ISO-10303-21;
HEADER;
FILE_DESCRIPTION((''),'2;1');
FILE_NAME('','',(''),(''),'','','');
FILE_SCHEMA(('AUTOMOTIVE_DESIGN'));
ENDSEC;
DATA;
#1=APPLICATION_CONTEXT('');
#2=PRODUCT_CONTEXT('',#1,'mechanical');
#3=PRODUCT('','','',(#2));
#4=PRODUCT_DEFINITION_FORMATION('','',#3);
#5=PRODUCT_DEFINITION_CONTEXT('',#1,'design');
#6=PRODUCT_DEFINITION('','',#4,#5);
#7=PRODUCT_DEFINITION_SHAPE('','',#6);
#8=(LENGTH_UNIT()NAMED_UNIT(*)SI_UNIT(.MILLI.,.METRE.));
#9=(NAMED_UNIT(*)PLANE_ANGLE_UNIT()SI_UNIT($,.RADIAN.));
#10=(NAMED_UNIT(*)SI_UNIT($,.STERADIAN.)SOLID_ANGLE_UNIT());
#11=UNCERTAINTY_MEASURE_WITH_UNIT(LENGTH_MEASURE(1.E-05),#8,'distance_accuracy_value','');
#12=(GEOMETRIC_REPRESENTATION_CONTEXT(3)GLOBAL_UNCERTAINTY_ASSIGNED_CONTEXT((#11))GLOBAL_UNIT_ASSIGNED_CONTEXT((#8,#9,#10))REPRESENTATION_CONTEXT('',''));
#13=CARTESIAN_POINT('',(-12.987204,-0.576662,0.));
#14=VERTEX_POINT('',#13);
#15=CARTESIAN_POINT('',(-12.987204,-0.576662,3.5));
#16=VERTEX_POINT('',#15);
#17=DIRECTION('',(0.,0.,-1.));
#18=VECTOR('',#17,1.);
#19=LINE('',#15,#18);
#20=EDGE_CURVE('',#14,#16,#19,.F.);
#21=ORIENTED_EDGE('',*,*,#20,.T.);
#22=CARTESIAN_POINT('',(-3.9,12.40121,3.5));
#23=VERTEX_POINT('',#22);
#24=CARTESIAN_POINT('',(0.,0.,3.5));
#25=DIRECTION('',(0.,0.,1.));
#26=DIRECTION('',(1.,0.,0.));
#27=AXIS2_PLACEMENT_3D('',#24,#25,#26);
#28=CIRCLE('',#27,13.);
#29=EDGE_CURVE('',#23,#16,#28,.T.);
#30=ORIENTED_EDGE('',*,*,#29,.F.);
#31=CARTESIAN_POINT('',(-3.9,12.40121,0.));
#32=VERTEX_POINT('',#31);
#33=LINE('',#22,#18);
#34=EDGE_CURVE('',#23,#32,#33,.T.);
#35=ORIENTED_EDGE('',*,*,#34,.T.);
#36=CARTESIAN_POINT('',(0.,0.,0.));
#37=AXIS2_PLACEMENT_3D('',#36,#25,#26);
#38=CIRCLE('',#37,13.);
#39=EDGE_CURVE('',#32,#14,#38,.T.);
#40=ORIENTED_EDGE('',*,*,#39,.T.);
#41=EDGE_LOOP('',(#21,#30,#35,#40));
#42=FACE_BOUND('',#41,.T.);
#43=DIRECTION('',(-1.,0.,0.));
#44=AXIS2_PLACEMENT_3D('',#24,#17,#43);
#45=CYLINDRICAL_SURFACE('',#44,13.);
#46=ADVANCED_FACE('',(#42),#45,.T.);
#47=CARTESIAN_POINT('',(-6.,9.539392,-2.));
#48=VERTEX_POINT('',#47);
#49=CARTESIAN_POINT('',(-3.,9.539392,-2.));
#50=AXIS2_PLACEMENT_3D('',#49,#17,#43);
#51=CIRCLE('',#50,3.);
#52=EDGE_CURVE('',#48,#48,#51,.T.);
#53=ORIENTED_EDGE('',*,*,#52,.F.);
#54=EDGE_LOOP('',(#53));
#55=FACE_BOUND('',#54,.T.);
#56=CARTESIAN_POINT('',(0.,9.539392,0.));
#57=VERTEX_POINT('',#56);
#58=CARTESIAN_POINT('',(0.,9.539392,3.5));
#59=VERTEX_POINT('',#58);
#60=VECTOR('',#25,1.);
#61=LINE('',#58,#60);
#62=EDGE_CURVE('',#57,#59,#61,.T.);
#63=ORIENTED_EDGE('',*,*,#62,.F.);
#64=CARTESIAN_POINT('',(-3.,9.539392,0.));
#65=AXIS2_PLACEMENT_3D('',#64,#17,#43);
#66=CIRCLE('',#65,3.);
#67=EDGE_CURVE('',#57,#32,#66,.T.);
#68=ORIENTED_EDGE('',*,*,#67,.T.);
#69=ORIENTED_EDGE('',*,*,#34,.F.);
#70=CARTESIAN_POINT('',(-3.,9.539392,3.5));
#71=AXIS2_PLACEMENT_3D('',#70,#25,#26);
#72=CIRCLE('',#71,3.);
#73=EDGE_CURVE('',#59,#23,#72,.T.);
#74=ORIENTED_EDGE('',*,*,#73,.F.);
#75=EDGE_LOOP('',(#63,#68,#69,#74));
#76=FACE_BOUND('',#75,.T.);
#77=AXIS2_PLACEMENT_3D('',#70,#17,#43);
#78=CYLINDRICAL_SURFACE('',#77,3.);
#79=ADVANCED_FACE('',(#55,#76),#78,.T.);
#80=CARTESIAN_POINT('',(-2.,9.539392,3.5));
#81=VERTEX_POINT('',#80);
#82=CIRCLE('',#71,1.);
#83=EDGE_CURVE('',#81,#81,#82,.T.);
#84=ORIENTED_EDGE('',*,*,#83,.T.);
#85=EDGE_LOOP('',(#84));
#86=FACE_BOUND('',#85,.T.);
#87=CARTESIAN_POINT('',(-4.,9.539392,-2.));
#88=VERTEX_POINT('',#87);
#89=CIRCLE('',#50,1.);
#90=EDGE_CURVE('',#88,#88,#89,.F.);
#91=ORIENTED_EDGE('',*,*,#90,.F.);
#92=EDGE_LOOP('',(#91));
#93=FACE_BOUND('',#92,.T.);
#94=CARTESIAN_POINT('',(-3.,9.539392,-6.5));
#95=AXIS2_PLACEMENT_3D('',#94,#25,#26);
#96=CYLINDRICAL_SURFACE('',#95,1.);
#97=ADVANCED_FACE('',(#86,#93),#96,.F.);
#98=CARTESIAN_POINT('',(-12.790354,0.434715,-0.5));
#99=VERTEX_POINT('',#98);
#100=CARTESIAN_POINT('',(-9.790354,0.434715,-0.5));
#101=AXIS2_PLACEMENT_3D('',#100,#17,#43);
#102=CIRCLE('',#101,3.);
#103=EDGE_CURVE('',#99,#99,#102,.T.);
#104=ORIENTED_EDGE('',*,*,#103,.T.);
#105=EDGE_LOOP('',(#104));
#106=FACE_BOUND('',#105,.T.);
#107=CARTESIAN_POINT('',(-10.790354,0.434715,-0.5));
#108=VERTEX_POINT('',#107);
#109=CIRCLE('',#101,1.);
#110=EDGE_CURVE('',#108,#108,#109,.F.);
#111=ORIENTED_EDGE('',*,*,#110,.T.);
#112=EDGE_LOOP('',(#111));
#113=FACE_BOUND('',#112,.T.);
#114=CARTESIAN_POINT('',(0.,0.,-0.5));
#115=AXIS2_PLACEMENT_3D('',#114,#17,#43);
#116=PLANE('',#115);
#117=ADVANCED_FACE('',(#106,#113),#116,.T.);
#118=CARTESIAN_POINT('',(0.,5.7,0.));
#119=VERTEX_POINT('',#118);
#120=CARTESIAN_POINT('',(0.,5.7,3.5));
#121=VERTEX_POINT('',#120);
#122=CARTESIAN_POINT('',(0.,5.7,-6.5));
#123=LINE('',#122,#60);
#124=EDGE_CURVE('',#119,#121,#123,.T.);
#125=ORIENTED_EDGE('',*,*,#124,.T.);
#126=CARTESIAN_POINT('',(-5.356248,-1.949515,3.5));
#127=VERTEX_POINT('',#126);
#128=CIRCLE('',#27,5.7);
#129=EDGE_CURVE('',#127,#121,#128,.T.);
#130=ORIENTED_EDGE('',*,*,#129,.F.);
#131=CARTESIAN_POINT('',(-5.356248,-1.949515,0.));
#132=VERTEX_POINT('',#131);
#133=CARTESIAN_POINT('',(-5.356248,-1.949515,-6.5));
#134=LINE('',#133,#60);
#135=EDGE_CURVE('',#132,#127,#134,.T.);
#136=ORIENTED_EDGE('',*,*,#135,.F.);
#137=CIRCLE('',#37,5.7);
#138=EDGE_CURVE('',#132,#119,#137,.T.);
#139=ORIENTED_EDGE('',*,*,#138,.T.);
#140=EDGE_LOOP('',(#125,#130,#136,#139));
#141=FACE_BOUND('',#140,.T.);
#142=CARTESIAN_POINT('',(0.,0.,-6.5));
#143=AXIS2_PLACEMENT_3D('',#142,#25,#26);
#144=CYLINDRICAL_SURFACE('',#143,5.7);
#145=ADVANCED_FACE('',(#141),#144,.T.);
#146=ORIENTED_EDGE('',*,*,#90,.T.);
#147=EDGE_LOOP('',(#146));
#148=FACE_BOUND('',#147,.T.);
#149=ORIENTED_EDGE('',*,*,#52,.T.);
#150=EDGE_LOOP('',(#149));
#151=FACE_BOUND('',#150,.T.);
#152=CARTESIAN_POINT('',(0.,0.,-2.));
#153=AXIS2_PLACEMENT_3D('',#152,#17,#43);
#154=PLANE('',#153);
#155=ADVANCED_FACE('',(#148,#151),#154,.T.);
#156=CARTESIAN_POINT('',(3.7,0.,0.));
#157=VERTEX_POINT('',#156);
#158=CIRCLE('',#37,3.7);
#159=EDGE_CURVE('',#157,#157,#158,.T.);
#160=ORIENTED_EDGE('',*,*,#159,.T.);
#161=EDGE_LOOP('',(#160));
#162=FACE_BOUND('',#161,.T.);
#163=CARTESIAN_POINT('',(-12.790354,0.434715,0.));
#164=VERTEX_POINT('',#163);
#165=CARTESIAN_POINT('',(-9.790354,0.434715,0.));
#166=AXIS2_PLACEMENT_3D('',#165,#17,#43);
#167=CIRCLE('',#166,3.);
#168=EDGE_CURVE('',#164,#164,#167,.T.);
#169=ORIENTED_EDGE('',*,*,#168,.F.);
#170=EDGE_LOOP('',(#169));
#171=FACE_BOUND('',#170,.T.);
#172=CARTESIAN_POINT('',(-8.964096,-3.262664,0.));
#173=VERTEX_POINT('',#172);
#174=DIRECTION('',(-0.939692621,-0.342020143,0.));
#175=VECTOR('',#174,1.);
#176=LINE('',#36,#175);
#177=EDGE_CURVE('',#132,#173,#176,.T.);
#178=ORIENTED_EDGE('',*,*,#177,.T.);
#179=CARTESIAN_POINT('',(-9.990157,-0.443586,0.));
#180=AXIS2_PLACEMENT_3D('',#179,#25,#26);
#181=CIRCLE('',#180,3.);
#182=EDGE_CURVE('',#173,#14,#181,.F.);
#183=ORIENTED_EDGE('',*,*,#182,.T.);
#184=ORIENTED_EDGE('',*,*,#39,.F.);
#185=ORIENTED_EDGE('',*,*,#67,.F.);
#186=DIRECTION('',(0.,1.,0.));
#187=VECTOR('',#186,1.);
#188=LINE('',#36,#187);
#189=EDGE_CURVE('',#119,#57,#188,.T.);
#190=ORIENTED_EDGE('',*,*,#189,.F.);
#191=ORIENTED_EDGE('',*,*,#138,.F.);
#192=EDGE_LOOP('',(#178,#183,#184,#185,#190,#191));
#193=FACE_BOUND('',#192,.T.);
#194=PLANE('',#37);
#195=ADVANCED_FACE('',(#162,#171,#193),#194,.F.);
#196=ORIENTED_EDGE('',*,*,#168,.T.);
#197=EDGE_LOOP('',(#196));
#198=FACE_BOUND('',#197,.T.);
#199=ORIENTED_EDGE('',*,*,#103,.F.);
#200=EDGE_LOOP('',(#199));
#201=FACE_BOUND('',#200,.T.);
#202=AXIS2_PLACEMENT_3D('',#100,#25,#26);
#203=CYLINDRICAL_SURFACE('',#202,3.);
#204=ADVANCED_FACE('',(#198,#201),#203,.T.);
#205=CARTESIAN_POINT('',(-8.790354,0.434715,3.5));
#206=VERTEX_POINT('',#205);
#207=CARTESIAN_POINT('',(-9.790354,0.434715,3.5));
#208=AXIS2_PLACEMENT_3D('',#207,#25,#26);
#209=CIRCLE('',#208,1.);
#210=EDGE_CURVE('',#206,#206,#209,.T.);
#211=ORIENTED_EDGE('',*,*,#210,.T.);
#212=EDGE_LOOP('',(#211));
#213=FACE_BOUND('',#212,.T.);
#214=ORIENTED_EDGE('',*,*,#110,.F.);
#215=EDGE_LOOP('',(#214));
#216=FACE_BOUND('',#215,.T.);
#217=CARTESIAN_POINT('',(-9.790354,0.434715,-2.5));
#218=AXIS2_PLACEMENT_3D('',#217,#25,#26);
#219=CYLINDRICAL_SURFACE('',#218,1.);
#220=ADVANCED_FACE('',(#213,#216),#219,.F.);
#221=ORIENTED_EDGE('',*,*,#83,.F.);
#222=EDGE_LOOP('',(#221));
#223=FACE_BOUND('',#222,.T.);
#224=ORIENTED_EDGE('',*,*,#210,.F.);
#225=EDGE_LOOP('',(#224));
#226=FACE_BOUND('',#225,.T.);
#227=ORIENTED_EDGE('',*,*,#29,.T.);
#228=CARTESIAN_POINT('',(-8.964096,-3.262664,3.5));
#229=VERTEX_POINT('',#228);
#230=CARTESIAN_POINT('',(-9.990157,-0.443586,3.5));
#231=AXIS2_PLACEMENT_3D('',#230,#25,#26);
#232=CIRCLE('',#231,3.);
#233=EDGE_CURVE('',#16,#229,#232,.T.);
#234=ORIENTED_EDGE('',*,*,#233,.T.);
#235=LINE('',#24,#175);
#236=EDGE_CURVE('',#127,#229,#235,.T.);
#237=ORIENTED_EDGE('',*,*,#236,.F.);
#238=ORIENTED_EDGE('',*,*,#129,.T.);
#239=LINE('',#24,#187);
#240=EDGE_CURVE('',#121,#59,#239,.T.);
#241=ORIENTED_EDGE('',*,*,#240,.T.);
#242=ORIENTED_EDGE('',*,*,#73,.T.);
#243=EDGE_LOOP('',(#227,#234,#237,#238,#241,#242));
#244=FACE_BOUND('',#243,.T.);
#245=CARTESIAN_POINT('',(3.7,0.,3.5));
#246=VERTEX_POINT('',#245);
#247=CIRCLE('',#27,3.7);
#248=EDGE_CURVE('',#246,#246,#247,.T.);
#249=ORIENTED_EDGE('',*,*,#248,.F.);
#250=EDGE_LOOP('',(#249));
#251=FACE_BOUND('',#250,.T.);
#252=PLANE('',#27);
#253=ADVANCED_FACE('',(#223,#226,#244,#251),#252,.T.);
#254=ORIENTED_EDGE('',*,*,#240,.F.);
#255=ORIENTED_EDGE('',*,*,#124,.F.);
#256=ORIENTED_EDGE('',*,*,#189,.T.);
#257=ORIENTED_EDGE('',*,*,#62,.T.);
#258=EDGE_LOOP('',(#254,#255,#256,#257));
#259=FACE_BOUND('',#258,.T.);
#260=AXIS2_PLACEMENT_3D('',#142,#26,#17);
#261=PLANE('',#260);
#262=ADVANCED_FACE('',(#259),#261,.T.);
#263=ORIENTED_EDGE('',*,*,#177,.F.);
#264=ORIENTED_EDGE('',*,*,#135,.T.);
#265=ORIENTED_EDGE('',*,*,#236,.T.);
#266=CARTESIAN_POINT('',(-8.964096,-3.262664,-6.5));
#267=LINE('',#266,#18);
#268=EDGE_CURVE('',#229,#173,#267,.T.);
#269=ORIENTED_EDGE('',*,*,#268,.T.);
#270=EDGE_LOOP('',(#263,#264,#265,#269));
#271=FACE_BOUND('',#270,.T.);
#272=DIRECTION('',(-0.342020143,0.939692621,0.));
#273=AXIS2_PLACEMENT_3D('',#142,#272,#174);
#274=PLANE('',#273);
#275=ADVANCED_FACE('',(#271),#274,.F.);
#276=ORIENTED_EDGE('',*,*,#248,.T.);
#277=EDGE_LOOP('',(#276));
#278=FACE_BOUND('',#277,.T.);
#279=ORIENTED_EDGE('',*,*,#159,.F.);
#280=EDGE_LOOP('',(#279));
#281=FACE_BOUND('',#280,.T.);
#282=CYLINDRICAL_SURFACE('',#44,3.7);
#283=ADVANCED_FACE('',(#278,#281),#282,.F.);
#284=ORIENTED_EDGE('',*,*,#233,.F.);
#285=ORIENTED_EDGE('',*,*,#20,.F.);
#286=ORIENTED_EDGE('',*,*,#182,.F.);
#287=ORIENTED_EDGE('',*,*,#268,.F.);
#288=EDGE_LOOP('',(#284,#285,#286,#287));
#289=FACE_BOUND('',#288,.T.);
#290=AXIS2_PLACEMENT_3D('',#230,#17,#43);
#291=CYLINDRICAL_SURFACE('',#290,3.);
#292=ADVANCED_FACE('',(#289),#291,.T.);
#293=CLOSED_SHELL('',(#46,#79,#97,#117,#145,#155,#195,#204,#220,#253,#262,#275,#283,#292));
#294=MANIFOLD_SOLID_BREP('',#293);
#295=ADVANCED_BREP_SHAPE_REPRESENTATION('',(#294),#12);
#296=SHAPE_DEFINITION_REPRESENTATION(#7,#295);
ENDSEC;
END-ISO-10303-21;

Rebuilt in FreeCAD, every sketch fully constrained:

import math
import FreeCAD as App
import Part
import Sketcher

V = App.Vector
Q = App.Units.Quantity


def edges_at(feature, points):
    """Names of the edges that pass closest to the given points."""
    edges = feature.Shape.Edges
    near = lambda p: min(range(len(edges)), key=lambda i: edges[i].distToShape(Part.Vertex(*p))[0])
    return sorted({f"Edge{near(p) + 1}" for p in points})

doc = App.newDocument("Part")
body = doc.addObject("PartDesign::Body", "Body")

# Sketch on XY plane
sketch1 = doc.addObject("Sketcher::SketchObject", "Sketch")
body.addObject(sketch1)
sketch1.AttachmentSupport = (doc.XY_Plane, [""])
sketch1.MapMode = "FlatFace"
sketch1.addGeometry([
    Part.Circle(V(0, 0, 0), V(0, 0, 1), 13),
    Part.Circle(V(0, 0, 0), V(0, 0, 1), 3.7),
], False)
sketch1.addConstraint([
    Sketcher.Constraint("Coincident", 0, 3, -1, 1),
    Sketcher.Constraint("Coincident", 1, 3, -1, 1),
    Sketcher.Constraint("Diameter", 0, Q("26 mm")),
    Sketcher.Constraint("Diameter", 1, Q("7.4 mm")),
])
pad1 = doc.addObject("PartDesign::Pad", "Pad")
body.addObject(pad1)
pad1.Profile = sketch1
pad1.Length = 3.5

# Sketch on XY plane
sketch2 = doc.addObject("Sketcher::SketchObject", "Sketch001")
body.addObject(sketch2)
sketch2.AttachmentSupport = (doc.XY_Plane, [""])
sketch2.MapMode = "FlatFace"
sketch2.AttachmentOffset = App.Placement(V(0, 0, 3.5), App.Rotation())
sketch2.addGeometry([
    Part.ArcOfCircle(Part.Circle(V(0, 0, 0), V(0, 0, 1), 5.7), math.radians(-160), math.radians(0)),  # 0
    Part.LineSegment(V(-5.356248, -1.949515, 0), V(-12.216004, -4.446262, 0)),  # 1
    Part.ArcOfCircle(Part.Circle(V(0, 0, 0), V(0, 0, 1), 13), math.radians(-160), math.radians(0)),  # 2
    Part.ArcOfCircle(Part.Circle(V(0, 0, 0), V(0, 0, 1), 13), math.radians(0), math.radians(90)),  # 3
    Part.LineSegment(V(0, 13, 0), V(0, 5.7, 0)),  # 4
    Part.ArcOfCircle(Part.Circle(V(0, 0, 0), V(0, 0, 1), 5.7), math.radians(0), math.radians(90)),  # 5
], False)
sketch2.addConstraint([
    Sketcher.Constraint("Coincident", 0, 1, 1, 1),
    Sketcher.Constraint("Coincident", 1, 2, 2, 1),
    Sketcher.Constraint("Tangent", 2, 2, 3, 1),
    Sketcher.Constraint("Coincident", 3, 2, 4, 1),
    Sketcher.Constraint("Coincident", 4, 2, 5, 2),
    Sketcher.Constraint("Tangent", 5, 1, 0, 2),
    Sketcher.Constraint("Vertical", 4),
    Sketcher.Constraint("Coincident", 0, 3, -1, 1),
    Sketcher.Constraint("Coincident", 2, 3, -1, 1),
    Sketcher.Constraint("Equal", 2, 3),
    Sketcher.Constraint("Equal", 0, 5),
    Sketcher.Constraint("PointOnObject", 2, 2, -1),
    Sketcher.Constraint("PointOnObject", 3, 2, -2),
    Sketcher.Constraint("PointOnObject", 5, 1, -1),
    Sketcher.Constraint("Radius", 2, Q("13 mm")),
    Sketcher.Constraint("Radius", 0, Q("5.7 mm")),
    Sketcher.Constraint("Angle", 1, Q("-160 deg")),
    Sketcher.Constraint("DistanceY", 1, 2, -1, 1, Q("4.446262 mm")),
])
pocket1 = doc.addObject("PartDesign::Pocket", "Pocket")
body.addObject(pocket1)
pocket1.Profile = sketch2
pocket1.Length = 10

# Sketch on XY plane
sketch3 = doc.addObject("Sketcher::SketchObject", "Sketch002")
body.addObject(sketch3)
sketch3.AttachmentSupport = (doc.XY_Plane, [""])
sketch3.MapMode = "FlatFace"
sketch3.AttachmentOffset = App.Placement(V(0, 0, 3.5), App.Rotation())
sketch3.addGeometry(Part.Circle(V(-3, 9.539392, 0), V(0, 0, 1), 1), False)
sketch3.addConstraint([
    Sketcher.Constraint("Diameter", 0, Q("2 mm")),
    Sketcher.Constraint("DistanceX", 0, 3, -1, 1, Q("3 mm")),
    Sketcher.Constraint("DistanceY", -1, 1, 0, 3, Q("9.539392 mm")),
])
pocket2 = doc.addObject("PartDesign::Pocket", "Pocket001")
body.addObject(pocket2)
pocket2.Profile = sketch3
pocket2.Length = 10

# Sketch on XY plane
sketch4 = doc.addObject("Sketcher::SketchObject", "Sketch003")
body.addObject(sketch4)
sketch4.AttachmentSupport = (doc.XY_Plane, [""])
sketch4.MapMode = "FlatFace"
sketch4.AttachmentOffset = App.Placement(V(0, 0, 3.5), App.Rotation())
sketch4.addGeometry(Part.Circle(V(-9.790354, 0.434715, 0), V(0, 0, 1), 1), False)
sketch4.addConstraint([
    Sketcher.Constraint("Diameter", 0, Q("2 mm")),
    Sketcher.Constraint("DistanceX", 0, 3, -1, 1, Q("9.790354 mm")),
    Sketcher.Constraint("DistanceY", -1, 1, 0, 3, Q("0.434715 mm")),
])
pocket3 = doc.addObject("PartDesign::Pocket", "Pocket002")
body.addObject(pocket3)
pocket3.Profile = sketch4
pocket3.Length = 6
doc.recompute()

fillet = doc.addObject("PartDesign::Fillet", "Fillet")
body.addObject(fillet)
fillet.Base = (pocket3, edges_at(pocket3, [(0, 13, 1.75), (-12.216, -4.446, 1.75)]))
fillet.Radius = 3

# Sketch on XY plane
sketch5 = doc.addObject("Sketcher::SketchObject", "Sketch004")
body.addObject(sketch5)
sketch5.AttachmentSupport = (doc.XY_Plane, [""])
sketch5.MapMode = "FlatFace"
sketch5.addGeometry([
    Part.Circle(V(-9.790354, 0.434715, 0), V(0, 0, 1), 3),
    Part.Circle(V(-9.790354, 0.434715, 0), V(0, 0, 1), 1),
], False)
sketch5.addConstraint([
    Sketcher.Constraint("Coincident", 1, 3, 0, 3),
    Sketcher.Constraint("Diameter", 0, Q("6 mm")),
    Sketcher.Constraint("Diameter", 1, Q("2 mm")),
    Sketcher.Constraint("DistanceX", 0, 3, -1, 1, Q("9.790354 mm")),
    Sketcher.Constraint("DistanceY", -1, 1, 0, 3, Q("0.434715 mm")),
])
pad2 = doc.addObject("PartDesign::Pad", "Pad001")
body.addObject(pad2)
pad2.Profile = sketch5
pad2.Length = 0.5
pad2.Reversed = True

# Sketch on XY plane
sketch6 = doc.addObject("Sketcher::SketchObject", "Sketch005")
body.addObject(sketch6)
sketch6.AttachmentSupport = (doc.XY_Plane, [""])
sketch6.MapMode = "FlatFace"
sketch6.addGeometry([
    Part.Circle(V(-3, 9.539392, 0), V(0, 0, 1), 3),
    Part.Circle(V(-3, 9.539392, 0), V(0, 0, 1), 1),
], False)
sketch6.addConstraint([
    Sketcher.Constraint("Coincident", 1, 3, 0, 3),
    Sketcher.Constraint("Diameter", 0, Q("6 mm")),
    Sketcher.Constraint("Diameter", 1, Q("2 mm")),
    Sketcher.Constraint("DistanceX", 0, 3, -1, 1, Q("3 mm")),
    Sketcher.Constraint("DistanceY", -1, 1, 0, 3, Q("9.539392 mm")),
])
pad3 = doc.addObject("PartDesign::Pad", "Pad002")
body.addObject(pad3)
pad3.Profile = sketch6
pad3.Length = 2
pad3.Reversed = True

doc.recompute()
